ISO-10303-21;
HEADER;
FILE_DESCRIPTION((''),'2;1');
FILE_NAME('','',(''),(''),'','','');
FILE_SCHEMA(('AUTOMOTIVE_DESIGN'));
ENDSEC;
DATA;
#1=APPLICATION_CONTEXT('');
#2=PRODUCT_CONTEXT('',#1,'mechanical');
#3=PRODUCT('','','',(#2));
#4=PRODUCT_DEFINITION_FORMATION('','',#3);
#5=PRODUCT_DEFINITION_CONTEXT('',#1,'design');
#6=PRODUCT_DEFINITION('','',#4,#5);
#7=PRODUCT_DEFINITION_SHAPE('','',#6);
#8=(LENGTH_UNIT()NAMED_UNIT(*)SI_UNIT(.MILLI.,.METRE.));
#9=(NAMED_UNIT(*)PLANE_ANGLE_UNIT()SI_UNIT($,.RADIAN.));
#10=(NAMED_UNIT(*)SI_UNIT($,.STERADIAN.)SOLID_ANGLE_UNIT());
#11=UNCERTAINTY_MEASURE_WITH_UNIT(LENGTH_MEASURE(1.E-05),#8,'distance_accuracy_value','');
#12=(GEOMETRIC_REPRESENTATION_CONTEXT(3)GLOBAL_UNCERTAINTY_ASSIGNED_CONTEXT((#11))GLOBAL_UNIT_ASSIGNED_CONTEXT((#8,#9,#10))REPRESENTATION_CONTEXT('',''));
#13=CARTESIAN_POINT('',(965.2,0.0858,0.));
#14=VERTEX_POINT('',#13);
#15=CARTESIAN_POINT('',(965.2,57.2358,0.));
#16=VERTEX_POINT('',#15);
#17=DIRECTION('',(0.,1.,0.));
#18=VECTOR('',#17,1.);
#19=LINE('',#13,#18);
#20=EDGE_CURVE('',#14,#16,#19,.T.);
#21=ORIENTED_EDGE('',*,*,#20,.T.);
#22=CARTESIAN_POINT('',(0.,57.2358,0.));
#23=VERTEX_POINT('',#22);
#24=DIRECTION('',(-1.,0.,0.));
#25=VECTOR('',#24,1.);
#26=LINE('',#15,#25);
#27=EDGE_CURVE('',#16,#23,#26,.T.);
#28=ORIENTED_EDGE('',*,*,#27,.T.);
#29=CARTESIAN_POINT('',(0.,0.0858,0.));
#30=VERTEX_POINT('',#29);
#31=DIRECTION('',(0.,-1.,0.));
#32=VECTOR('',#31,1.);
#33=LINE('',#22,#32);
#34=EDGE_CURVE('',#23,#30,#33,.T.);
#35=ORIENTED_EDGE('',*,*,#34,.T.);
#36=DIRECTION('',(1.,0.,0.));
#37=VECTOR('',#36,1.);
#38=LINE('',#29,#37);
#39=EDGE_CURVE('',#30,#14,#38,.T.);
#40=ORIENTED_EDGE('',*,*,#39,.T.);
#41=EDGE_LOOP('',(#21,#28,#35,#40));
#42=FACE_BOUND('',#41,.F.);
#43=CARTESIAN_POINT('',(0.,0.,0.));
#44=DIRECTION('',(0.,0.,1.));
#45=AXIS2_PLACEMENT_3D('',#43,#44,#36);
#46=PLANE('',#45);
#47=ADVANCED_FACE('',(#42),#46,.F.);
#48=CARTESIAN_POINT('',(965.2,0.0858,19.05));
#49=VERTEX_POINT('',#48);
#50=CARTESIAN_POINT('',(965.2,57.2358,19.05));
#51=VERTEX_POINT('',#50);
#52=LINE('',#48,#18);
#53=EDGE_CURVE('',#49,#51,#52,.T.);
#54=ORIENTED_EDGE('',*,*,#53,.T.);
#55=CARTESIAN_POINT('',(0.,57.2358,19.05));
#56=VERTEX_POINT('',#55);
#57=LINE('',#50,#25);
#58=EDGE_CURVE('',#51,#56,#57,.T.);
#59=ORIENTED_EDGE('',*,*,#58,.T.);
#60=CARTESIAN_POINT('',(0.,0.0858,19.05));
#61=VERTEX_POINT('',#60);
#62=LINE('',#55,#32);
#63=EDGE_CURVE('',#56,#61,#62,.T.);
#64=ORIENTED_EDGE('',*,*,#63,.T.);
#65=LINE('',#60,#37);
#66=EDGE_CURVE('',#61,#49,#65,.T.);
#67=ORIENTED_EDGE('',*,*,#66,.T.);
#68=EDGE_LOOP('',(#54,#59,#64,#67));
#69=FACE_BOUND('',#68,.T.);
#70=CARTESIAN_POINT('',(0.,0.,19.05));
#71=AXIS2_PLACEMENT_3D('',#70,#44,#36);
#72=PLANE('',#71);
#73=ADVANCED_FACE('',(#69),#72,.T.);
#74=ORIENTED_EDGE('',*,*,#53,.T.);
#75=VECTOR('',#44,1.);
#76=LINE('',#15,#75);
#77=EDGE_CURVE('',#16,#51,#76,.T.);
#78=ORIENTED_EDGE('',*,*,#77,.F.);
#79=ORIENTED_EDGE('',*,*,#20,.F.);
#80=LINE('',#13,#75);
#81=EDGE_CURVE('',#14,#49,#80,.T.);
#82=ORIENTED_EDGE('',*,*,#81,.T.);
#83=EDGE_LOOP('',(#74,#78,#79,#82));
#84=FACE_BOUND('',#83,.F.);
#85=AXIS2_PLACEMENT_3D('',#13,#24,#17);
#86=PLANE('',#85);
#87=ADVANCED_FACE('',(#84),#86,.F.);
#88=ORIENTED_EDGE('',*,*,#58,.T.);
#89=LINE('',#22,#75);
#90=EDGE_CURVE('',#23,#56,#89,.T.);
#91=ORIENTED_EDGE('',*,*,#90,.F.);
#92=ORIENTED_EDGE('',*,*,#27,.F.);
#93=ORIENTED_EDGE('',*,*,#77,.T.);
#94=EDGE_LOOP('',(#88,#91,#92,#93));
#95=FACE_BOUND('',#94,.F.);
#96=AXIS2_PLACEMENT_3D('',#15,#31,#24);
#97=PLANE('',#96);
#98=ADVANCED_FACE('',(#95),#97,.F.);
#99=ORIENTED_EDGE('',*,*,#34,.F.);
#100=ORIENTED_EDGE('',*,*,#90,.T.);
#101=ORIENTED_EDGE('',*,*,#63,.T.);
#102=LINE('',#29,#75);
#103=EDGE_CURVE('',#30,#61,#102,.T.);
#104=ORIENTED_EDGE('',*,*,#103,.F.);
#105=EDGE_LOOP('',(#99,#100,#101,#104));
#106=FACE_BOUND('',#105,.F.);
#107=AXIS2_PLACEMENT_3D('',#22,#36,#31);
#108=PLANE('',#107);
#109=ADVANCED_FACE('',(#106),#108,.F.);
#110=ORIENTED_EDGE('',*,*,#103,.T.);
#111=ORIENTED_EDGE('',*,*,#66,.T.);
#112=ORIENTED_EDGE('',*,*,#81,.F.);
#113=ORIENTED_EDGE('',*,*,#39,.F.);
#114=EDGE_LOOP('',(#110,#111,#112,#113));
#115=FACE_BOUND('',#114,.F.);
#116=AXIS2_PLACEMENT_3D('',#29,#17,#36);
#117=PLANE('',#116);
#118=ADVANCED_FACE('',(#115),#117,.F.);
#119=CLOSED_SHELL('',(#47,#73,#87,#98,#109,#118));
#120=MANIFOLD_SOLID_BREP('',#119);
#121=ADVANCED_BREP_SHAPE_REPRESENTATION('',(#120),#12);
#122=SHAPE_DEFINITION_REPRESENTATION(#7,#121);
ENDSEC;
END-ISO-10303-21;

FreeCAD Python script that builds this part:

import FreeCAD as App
import Part
import Sketcher
from FreeCAD import Vector
Q = App.Units.Quantity


def add_polygon(sketch, points):
    """Adds a closed chain of lines whose ends are joined by coincident constraints."""
    first, n = sketch.GeometryCount, len(points)
    for a, b in zip(points, points[1:] + points[:1]):
        sketch.addGeometry(Part.LineSegment(App.Vector(*a, 0), App.Vector(*b, 0)), False)
    for i in range(n):
        sketch.addConstraint(Sketcher.Constraint("Coincident", first + i, 2, first + (i + 1) % n, 1))

doc = App.newDocument("Part")
params = doc.addObject("Spreadsheet::Sheet", "Params")
for row, (alias, value) in enumerate([
    ("sketch1_width", "38 in"),
    ("sketch1_height", "2.25 in"),
    ("pad1_length", "0.75 in"),
], start=1):
    params.set(f"A{row}", alias)
    params.set(f"B{row}", "=" + value)
    params.setAlias(f"B{row}", alias)

body = doc.addObject("PartDesign::Body", "Body")

# Sketch on XY plane
sketch1 = body.newObject("Sketcher::SketchObject", "Sketch")
sketch1.AttachmentSupport = (doc.getObject("XY_Plane"), [""])
sketch1.MapMode = "FlatFace"
add_polygon(sketch1, [(965.2, 0.0858), (965.2, 57.2358), (0, 57.2358), (0, 0.0858)])  # lines 0-3
sketch1.addConstraint([
    Sketcher.Constraint("Vertical", 0),
    Sketcher.Constraint("Horizontal", 1),
    Sketcher.Constraint("Vertical", 2),
    Sketcher.Constraint("Horizontal", 3),
    Sketcher.Constraint("PointOnObject", 1, 2, -2),
    Sketcher.Constraint("DistanceX", 1, 2, 1, 1, Q("38 in")),
    Sketcher.Constraint("DistanceY", 0, 1, 0, 2, Q("2.25 in")),
    Sketcher.Constraint("DistanceY", -1, 1, 0, 2, 57.2358),
])
sketch1.setExpression("Constraints[9]", "Params.sketch1_width")
sketch1.setExpression("Constraints[10]", "Params.sketch1_height")
pad1 = body.newObject("PartDesign::Pad", "Pad")
pad1.Profile = sketch1
pad1.setExpression("Length", "Params.pad1_length")

doc.recompute()
